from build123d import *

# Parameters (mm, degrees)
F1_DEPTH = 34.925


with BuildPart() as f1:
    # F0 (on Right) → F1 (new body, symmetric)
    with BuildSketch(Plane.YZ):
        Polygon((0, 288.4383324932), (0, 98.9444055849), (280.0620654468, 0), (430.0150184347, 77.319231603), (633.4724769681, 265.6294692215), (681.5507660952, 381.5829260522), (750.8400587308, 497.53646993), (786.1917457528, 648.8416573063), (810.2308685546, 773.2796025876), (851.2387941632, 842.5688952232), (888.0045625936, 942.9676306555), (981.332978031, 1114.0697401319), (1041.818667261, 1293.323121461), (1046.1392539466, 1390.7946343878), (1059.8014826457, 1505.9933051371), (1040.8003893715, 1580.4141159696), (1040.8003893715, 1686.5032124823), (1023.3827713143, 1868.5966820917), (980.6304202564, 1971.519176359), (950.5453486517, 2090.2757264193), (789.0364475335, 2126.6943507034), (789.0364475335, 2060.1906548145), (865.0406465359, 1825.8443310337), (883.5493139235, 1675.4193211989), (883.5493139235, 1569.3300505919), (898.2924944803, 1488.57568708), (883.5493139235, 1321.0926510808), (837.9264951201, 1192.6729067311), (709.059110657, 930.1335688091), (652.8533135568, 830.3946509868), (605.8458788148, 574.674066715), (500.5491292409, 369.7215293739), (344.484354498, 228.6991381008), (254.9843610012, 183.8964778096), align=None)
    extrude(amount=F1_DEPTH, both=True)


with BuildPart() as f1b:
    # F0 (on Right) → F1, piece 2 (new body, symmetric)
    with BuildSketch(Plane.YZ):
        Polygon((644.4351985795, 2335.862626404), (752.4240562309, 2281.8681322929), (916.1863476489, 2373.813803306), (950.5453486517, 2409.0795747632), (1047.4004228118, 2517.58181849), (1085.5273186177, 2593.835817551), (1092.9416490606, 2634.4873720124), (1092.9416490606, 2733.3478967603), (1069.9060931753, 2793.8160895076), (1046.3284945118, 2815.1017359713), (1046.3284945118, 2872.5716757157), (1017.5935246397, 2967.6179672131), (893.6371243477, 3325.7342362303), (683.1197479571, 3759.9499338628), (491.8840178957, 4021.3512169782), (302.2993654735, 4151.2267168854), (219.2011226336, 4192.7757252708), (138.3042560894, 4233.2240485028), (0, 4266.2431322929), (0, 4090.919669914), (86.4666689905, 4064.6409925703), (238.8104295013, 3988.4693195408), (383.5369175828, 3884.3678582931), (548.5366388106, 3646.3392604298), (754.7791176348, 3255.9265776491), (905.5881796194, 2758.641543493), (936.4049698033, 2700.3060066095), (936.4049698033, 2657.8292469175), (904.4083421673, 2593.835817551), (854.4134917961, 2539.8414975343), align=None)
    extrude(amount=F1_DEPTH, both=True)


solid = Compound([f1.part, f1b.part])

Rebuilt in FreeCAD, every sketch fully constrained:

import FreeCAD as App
import Part
import Sketcher
from FreeCAD import Vector
Q = App.Units.Quantity


def add_polygon(sketch, points):
    """Adds a closed chain of lines whose ends are joined by coincident constraints."""
    first, n = sketch.GeometryCount, len(points)
    for a, b in zip(points, points[1:] + points[:1]):
        sketch.addGeometry(Part.LineSegment(App.Vector(*a, 0), App.Vector(*b, 0)), False)
    for i in range(n):
        sketch.addConstraint(Sketcher.Constraint("Coincident", first + i, 2, first + (i + 1) % n, 1))

doc = App.newDocument("Part")
body = doc.addObject("PartDesign::Body", "Body")

# Sketch on YZ plane
sketch1 = body.newObject("Sketcher::SketchObject", "Sketch")
sketch1.AttachmentSupport = (doc.getObject("YZ_Plane"), [""])
sketch1.MapMode = "FlatFace"
add_polygon(sketch1, [(0, 288), (0, 99), (280, 0), (430, 77), (633, 266), (682, 382), (751, 498), (786, 649), (810, 773), (851, 843), (888, 943), (981, 1114), (1042, 1293), (1046, 1391), (1060, 1506), (1041, 1580), (1041, 1687), (1023, 1869), (981, 1972), (951, 2090), (789, 2127), (789, 2060), (865, 1826), (884, 1675), (884, 1569), (898, 1489), (884, 1321), (838, 1193), (709, 930), (653, 830), (606, 575), (501, 370), (344, 229), (255, 184)])  # lines 0-33
sketch1.addConstraint([
    Sketcher.Constraint("Vertical", 0),
    Sketcher.Constraint("Vertical", 15),
    Sketcher.Constraint("Vertical", 20),
    Sketcher.Constraint("Vertical", 23),
    Sketcher.Constraint("PointOnObject", 0, 2, -2),
    Sketcher.Constraint("PointOnObject", 1, 2, -1),
    Sketcher.Constraint("Vertical", 23, 2, 25, 2),
    Sketcher.Constraint("DistanceX", -1, 1, 29, 2, Q("23.8522 in")),
    Sketcher.Constraint("DistanceY", 4, 2, 5, 2, Q("4.5651002 in")),
    Sketcher.Constraint("Distance", 4, Q("125.525798 mm")),
    Sketcher.Constraint("DistanceY", 23, 2, 23, 1, Q("106.089271 mm")),
    Sketcher.Constraint("DistanceX", 1, 2, 4, 2, Q("401.488701 mm")),
    Sketcher.Constraint("DistanceY", 3, 2, 5, 2, Q("231.907001 mm")),
    Sketcher.Constraint("DistanceX", 7, 2, 11, 2, Q("231.587799 mm")),
    Sketcher.Constraint("DistanceX", 19, 2, 18, 2, Q("161.508901 mm")),
    Sketcher.Constraint("DistanceX", 20, 2, 21, 2, Q("76.004199 mm")),
    Sketcher.Constraint("DistanceY", 25, 2, 23, 2, Q("248.2374 mm")),
    Sketcher.Constraint("DistanceY", 2, 2, 33, 2, Q("211.119101 mm")),
    Sketcher.Constraint("Distance", 5, Q("135.078608 mm")),
    Sketcher.Constraint("Distance", 9, Q("106.918791 mm")),
    Sketcher.Constraint("Distance", 16, Q("182.924589 mm")),
    Sketcher.Constraint("Distance", 18, Q("122.50808 mm")),
    Sketcher.Constraint("Distance", 19, Q("165.56401 mm")),
    Sketcher.Constraint("Distance", 22, Q("151.559409 mm")),
    Sketcher.Constraint("Distance", 24, Q("82.08915 mm")),
    Sketcher.Constraint("Distance", 25, Q("168.130689 mm")),
    Sketcher.Constraint("Distance", 26, Q("136.28306 mm")),
    Sketcher.Constraint("Distance", 27, Q("292.461462 mm")),
    Sketcher.Constraint("Distance", 28, Q("114.48556 mm")),
    Sketcher.Constraint("Distance", 30, Q("230.41907 mm")),
    Sketcher.Constraint("Distance", 33, Q("275.583061 mm")),
    Sketcher.Constraint("DistanceY", 0, 2, 0, 1, Q("189.493927 mm")),
    Sketcher.Constraint("DistanceY", 15, 1, 15, 2, Q("106.089097 mm")),
    Sketcher.Constraint("DistanceY", 20, 2, 20, 1, Q("66.503696 mm")),
    Sketcher.Constraint("DistanceX", -1, 1, 2, 2, Q("430.015018 mm")),
    Sketcher.Constraint("DistanceY", -1, 1, 2, 2, Q("77.319232 mm")),
    Sketcher.Constraint("DistanceY", -1, 1, 3, 2, Q("265.629469 mm")),
    Sketcher.Constraint("DistanceX", -1, 1, 5, 2, Q("750.840059 mm")),
    Sketcher.Constraint("DistanceX", -1, 1, 7, 2, Q("810.230869 mm")),
    Sketcher.Constraint("DistanceY", -1, 1, 9, 2, Q("942.967631 mm")),
    Sketcher.Constraint("DistanceX", -1, 1, 10, 2, Q("981.332978 mm")),
    Sketcher.Constraint("DistanceY", -1, 1, 10, 2, Q("1114.06974 mm")),
    Sketcher.Constraint("DistanceY", -1, 1, 11, 2, Q("1293.323121 mm")),
    Sketcher.Constraint("DistanceX", -1, 1, 14, 2, Q("1040.800389 mm")),
    Sketcher.Constraint("DistanceX", -1, 1, 16, 2, Q("1023.382771 mm")),
    Sketcher.Constraint("DistanceX", -1, 1, 17, 2, Q("980.63042 mm")),
    Sketcher.Constraint("DistanceX", -1, 1, 18, 2, Q("950.545349 mm")),
    Sketcher.Constraint("DistanceY", -1, 1, 19, 2, Q("2126.694351 mm")),
    Sketcher.Constraint("DistanceY", -1, 1, 21, 2, Q("1825.844331 mm")),
    Sketcher.Constraint("DistanceY", -1, 1, 22, 2, Q("1675.419321 mm")),
    Sketcher.Constraint("DistanceX", -1, 1, 27, 2, Q("709.059111 mm")),
    Sketcher.Constraint("DistanceY", -1, 1, 27, 2, Q("930.133569 mm")),
    Sketcher.Constraint("DistanceY", -1, 1, 28, 2, Q("830.394651 mm")),
    Sketcher.Constraint("DistanceX", -1, 1, 30, 2, Q("500.549129 mm")),
    Sketcher.Constraint("DistanceY", -1, 1, 30, 2, Q("369.721529 mm")),
    Sketcher.Constraint("DistanceY", -1, 1, 31, 2, Q("228.699138 mm")),
    Sketcher.Constraint("DistanceX", -1, 1, 32, 2, Q("254.984361 mm")),
    Sketcher.Constraint("DistanceX", 4, 2, 6, 2, Q("104.64098 mm")),
    Sketcher.Constraint("DistanceY", 4, 2, 6, 2, Q("267.258731 mm")),
    Sketcher.Constraint("DistanceY", 2, 2, 7, 2, Q("695.960371 mm")),
    Sketcher.Constraint("DistanceX", 6, 2, 8, 2, Q("65.047048 mm")),
    Sketcher.Constraint("DistanceY", 4, 2, 8, 2, Q("460.985969 mm")),
    Sketcher.Constraint("DistanceX", 9, 2, 12, 2, Q("158.134691 mm")),
    Sketcher.Constraint("DistanceY", 8, 2, 12, 2, Q("548.225739 mm")),
    Sketcher.Constraint("DistanceX", 12, 2, 13, 2, Q("13.662229 mm")),
    Sketcher.Constraint("DistanceY", 12, 2, 13, 2, Q("115.198671 mm")),
    Sketcher.Constraint("DistanceY", 13, 2, 14, 2, Q("74.420811 mm")),
    Sketcher.Constraint("DistanceX", 1, 2, 31, 2, Q("64.422289 mm")),
])
pad1 = body.newObject("PartDesign::Pad", "Pad")
pad1.Profile = sketch1
pad1.Length = Q("2.75 in")
pad1.Midplane = True
body2 = doc.addObject("PartDesign::Body", "Body001")

# Sketch on YZ plane
sketch2 = body2.newObject("Sketcher::SketchObject", "Sketch001")
sketch2.AttachmentSupport = (doc.getObject("YZ_Plane001"), [""])
sketch2.MapMode = "FlatFace"
add_polygon(sketch2, [(644.435199, 2335.862626), (752.424056, 2281.868132), (916.186348, 2373.813803), (950.545349, 2409.079575), (1047.400423, 2517.581818), (1085.527319, 2593.835818), (1092.941649, 2634.487372), (1092.941649, 2733.347897), (1069.906093, 2793.81609), (1046.328495, 2815.101736), (1046.328495, 2872.571676), (1017.593525, 2967.617967), (893.637124, 3325.734236), (683.119748, 3759.949934), (491.884018, 4021.351217), (302.299365, 4151.226717), (138.304256, 4233.224049), (0, 4266.243132), (0, 4090.91967), (86.466669, 4064.640993), (238.81043, 3988.46932), (383.536918, 3884.367858), (548.536639, 3646.33926), (754.779118, 3255.926578), (905.58818, 2758.641543), (936.40497, 2700.306007), (936.40497, 2657.829247), (904.408342, 2593.835818), (854.413492, 2539.841498)])  # lines 0-28
sketch2.addConstraint([
    Sketcher.Constraint("Vertical", 6),
    Sketcher.Constraint("Vertical", 9),
    Sketcher.Constraint("Vertical", 17),
    Sketcher.Constraint("Vertical", 25),
    Sketcher.Constraint("PointOnObject", 16, 2, -2),
    Sketcher.Constraint("Perpendicular", 0, 4),
    Sketcher.Constraint("Perpendicular", 4, 15),
    Sketcher.Constraint("Parallel", 15, 19),
    Sketcher.Constraint("Parallel", 22, 24),
    Sketcher.Constraint("Perpendicular", 19, 26),
    Sketcher.Constraint("Horizontal", 4, 2, 26, 2),
    Sketcher.Constraint("DistanceY", 9, 1, 9, 2, Q("57.46994 mm")),
    Sketcher.Constraint("DistanceY", 25, 2, 25, 1, Q("42.47676 mm")),
    Sketcher.Constraint("DistanceX", -1, 1, 28, 2, Q("644.435199 mm")),
    Sketcher.Constraint("DistanceX", 1, 2, 2, 2, Q("34.359001 mm")),
    Sketcher.Constraint("DistanceY", 3, 2, 4, 2, Q("76.253999 mm")),
    Sketcher.Constraint("DistanceX", 2, 2, 5, 2, Q("142.3963 mm")),
    Sketcher.Constraint("DistanceX", 8, 2, 7, 2, Q("23.577599 mm")),
    Sketcher.Constraint("DistanceX", 11, 2, 10, 2, Q("123.9564 mm")),
    Sketcher.Constraint("DistanceY", 8, 2, 11, 2, Q("510.6325 mm")),
    Sketcher.Constraint("DistanceY", 13, 2, 14, 2, Q("129.8755 mm")),
    Sketcher.Constraint("DistanceY", 12, 2, 16, 2, Q("506.293198 mm")),
    Sketcher.Constraint("DistanceX", 20, 2, 13, 2, Q("108.3471 mm")),
    Sketcher.Constraint("DistanceY", 9, 2, 22, 2, Q("383.354902 mm")),
    Sketcher.Constraint("Distance", 19, Q("170.32541 mm")),
    Sketcher.Constraint("Distance", 20, Q("178.27751 mm")),
    Sketcher.Constraint("Distance", 22, Q("441.540511 mm")),
    Sketcher.Constraint("Distance", 23, Q("519.649669 mm")),
    Sketcher.Constraint("Distance", 26, Q("71.54679 mm")),
    Sketcher.Constraint("Distance", 27, Q("73.585812 mm")),
    Sketcher.Constraint("DistanceY", 6, 1, 6, 2, Q("98.860525 mm")),
    Sketcher.Constraint("DistanceY", 17, 2, 17, 1, Q("175.323462 mm")),
    Sketcher.Constraint("DistanceX", -1, 1, 2, 2, Q("950.545349 mm")),
    Sketcher.Constraint("DistanceY", -1, 1, 3, 2, Q("2517.581818 mm")),
    Sketcher.Constraint("DistanceX", -1, 1, 4, 2, Q("1085.527319 mm")),
    Sketcher.Constraint("DistanceY", -1, 1, 7, 2, Q("2793.81609 mm")),
    Sketcher.Constraint("DistanceY", -1, 1, 15, 2, Q("4233.224049 mm")),
    Sketcher.Constraint("DistanceY", -1, 1, 17, 2, Q("4090.91967 mm")),
    Sketcher.Constraint("DistanceX", -1, 1, 18, 2, Q("86.466669 mm")),
    Sketcher.Constraint("DistanceX", -1, 1, 19, 2, Q("238.81043 mm")),
    Sketcher.Constraint("DistanceY", -1, 1, 19, 2, Q("3988.46932 mm")),
    Sketcher.Constraint("DistanceY", -1, 1, 20, 2, Q("3884.367858 mm")),
    Sketcher.Constraint("DistanceX", -1, 1, 21, 2, Q("548.536639 mm")),
    Sketcher.Constraint("DistanceY", -1, 1, 21, 2, Q("3646.33926 mm")),
    Sketcher.Constraint("DistanceX", -1, 1, 23, 2, Q("905.58818 mm")),
    Sketcher.Constraint("DistanceX", -1, 1, 24, 2, Q("936.40497 mm")),
    Sketcher.Constraint("DistanceX", -1, 1, 27, 2, Q("854.413492 mm")),
    Sketcher.Constraint("DistanceX", 0, 2, 1, 2, Q("163.762291 mm")),
    Sketcher.Constraint("DistanceY", 0, 2, 1, 2, Q("91.945671 mm")),
    Sketcher.Constraint("DistanceY", 1, 2, 2, 2, Q("35.265771 mm")),
    Sketcher.Constraint("DistanceY", 1, 2, 5, 2, Q("260.673569 mm")),
    Sketcher.Constraint("DistanceY", 4, 2, 6, 2, Q("139.512079 mm")),
    Sketcher.Constraint("DistanceX", 3, 2, 7, 2, Q("22.50567 mm")),
    Sketcher.Constraint("DistanceX", 10, 2, 9, 2, Q("28.73497 mm")),
    Sketcher.Constraint("DistanceY", 9, 2, 10, 2, Q("95.046291 mm")),
    Sketcher.Constraint("DistanceX", 13, 2, 12, 2, Q("191.23573 mm")),
    Sketcher.Constraint("DistanceY", 11, 2, 13, 2, Q("695.616981 mm")),
    Sketcher.Constraint("DistanceX", 14, 2, 11, 2, Q("591.337759 mm")),
])
pad2 = body2.newObject("PartDesign::Pad", "Pad001")
pad2.Profile = sketch2
pad2.Length = Q("2.75 in")
pad2.Midplane = True

doc.recompute()
